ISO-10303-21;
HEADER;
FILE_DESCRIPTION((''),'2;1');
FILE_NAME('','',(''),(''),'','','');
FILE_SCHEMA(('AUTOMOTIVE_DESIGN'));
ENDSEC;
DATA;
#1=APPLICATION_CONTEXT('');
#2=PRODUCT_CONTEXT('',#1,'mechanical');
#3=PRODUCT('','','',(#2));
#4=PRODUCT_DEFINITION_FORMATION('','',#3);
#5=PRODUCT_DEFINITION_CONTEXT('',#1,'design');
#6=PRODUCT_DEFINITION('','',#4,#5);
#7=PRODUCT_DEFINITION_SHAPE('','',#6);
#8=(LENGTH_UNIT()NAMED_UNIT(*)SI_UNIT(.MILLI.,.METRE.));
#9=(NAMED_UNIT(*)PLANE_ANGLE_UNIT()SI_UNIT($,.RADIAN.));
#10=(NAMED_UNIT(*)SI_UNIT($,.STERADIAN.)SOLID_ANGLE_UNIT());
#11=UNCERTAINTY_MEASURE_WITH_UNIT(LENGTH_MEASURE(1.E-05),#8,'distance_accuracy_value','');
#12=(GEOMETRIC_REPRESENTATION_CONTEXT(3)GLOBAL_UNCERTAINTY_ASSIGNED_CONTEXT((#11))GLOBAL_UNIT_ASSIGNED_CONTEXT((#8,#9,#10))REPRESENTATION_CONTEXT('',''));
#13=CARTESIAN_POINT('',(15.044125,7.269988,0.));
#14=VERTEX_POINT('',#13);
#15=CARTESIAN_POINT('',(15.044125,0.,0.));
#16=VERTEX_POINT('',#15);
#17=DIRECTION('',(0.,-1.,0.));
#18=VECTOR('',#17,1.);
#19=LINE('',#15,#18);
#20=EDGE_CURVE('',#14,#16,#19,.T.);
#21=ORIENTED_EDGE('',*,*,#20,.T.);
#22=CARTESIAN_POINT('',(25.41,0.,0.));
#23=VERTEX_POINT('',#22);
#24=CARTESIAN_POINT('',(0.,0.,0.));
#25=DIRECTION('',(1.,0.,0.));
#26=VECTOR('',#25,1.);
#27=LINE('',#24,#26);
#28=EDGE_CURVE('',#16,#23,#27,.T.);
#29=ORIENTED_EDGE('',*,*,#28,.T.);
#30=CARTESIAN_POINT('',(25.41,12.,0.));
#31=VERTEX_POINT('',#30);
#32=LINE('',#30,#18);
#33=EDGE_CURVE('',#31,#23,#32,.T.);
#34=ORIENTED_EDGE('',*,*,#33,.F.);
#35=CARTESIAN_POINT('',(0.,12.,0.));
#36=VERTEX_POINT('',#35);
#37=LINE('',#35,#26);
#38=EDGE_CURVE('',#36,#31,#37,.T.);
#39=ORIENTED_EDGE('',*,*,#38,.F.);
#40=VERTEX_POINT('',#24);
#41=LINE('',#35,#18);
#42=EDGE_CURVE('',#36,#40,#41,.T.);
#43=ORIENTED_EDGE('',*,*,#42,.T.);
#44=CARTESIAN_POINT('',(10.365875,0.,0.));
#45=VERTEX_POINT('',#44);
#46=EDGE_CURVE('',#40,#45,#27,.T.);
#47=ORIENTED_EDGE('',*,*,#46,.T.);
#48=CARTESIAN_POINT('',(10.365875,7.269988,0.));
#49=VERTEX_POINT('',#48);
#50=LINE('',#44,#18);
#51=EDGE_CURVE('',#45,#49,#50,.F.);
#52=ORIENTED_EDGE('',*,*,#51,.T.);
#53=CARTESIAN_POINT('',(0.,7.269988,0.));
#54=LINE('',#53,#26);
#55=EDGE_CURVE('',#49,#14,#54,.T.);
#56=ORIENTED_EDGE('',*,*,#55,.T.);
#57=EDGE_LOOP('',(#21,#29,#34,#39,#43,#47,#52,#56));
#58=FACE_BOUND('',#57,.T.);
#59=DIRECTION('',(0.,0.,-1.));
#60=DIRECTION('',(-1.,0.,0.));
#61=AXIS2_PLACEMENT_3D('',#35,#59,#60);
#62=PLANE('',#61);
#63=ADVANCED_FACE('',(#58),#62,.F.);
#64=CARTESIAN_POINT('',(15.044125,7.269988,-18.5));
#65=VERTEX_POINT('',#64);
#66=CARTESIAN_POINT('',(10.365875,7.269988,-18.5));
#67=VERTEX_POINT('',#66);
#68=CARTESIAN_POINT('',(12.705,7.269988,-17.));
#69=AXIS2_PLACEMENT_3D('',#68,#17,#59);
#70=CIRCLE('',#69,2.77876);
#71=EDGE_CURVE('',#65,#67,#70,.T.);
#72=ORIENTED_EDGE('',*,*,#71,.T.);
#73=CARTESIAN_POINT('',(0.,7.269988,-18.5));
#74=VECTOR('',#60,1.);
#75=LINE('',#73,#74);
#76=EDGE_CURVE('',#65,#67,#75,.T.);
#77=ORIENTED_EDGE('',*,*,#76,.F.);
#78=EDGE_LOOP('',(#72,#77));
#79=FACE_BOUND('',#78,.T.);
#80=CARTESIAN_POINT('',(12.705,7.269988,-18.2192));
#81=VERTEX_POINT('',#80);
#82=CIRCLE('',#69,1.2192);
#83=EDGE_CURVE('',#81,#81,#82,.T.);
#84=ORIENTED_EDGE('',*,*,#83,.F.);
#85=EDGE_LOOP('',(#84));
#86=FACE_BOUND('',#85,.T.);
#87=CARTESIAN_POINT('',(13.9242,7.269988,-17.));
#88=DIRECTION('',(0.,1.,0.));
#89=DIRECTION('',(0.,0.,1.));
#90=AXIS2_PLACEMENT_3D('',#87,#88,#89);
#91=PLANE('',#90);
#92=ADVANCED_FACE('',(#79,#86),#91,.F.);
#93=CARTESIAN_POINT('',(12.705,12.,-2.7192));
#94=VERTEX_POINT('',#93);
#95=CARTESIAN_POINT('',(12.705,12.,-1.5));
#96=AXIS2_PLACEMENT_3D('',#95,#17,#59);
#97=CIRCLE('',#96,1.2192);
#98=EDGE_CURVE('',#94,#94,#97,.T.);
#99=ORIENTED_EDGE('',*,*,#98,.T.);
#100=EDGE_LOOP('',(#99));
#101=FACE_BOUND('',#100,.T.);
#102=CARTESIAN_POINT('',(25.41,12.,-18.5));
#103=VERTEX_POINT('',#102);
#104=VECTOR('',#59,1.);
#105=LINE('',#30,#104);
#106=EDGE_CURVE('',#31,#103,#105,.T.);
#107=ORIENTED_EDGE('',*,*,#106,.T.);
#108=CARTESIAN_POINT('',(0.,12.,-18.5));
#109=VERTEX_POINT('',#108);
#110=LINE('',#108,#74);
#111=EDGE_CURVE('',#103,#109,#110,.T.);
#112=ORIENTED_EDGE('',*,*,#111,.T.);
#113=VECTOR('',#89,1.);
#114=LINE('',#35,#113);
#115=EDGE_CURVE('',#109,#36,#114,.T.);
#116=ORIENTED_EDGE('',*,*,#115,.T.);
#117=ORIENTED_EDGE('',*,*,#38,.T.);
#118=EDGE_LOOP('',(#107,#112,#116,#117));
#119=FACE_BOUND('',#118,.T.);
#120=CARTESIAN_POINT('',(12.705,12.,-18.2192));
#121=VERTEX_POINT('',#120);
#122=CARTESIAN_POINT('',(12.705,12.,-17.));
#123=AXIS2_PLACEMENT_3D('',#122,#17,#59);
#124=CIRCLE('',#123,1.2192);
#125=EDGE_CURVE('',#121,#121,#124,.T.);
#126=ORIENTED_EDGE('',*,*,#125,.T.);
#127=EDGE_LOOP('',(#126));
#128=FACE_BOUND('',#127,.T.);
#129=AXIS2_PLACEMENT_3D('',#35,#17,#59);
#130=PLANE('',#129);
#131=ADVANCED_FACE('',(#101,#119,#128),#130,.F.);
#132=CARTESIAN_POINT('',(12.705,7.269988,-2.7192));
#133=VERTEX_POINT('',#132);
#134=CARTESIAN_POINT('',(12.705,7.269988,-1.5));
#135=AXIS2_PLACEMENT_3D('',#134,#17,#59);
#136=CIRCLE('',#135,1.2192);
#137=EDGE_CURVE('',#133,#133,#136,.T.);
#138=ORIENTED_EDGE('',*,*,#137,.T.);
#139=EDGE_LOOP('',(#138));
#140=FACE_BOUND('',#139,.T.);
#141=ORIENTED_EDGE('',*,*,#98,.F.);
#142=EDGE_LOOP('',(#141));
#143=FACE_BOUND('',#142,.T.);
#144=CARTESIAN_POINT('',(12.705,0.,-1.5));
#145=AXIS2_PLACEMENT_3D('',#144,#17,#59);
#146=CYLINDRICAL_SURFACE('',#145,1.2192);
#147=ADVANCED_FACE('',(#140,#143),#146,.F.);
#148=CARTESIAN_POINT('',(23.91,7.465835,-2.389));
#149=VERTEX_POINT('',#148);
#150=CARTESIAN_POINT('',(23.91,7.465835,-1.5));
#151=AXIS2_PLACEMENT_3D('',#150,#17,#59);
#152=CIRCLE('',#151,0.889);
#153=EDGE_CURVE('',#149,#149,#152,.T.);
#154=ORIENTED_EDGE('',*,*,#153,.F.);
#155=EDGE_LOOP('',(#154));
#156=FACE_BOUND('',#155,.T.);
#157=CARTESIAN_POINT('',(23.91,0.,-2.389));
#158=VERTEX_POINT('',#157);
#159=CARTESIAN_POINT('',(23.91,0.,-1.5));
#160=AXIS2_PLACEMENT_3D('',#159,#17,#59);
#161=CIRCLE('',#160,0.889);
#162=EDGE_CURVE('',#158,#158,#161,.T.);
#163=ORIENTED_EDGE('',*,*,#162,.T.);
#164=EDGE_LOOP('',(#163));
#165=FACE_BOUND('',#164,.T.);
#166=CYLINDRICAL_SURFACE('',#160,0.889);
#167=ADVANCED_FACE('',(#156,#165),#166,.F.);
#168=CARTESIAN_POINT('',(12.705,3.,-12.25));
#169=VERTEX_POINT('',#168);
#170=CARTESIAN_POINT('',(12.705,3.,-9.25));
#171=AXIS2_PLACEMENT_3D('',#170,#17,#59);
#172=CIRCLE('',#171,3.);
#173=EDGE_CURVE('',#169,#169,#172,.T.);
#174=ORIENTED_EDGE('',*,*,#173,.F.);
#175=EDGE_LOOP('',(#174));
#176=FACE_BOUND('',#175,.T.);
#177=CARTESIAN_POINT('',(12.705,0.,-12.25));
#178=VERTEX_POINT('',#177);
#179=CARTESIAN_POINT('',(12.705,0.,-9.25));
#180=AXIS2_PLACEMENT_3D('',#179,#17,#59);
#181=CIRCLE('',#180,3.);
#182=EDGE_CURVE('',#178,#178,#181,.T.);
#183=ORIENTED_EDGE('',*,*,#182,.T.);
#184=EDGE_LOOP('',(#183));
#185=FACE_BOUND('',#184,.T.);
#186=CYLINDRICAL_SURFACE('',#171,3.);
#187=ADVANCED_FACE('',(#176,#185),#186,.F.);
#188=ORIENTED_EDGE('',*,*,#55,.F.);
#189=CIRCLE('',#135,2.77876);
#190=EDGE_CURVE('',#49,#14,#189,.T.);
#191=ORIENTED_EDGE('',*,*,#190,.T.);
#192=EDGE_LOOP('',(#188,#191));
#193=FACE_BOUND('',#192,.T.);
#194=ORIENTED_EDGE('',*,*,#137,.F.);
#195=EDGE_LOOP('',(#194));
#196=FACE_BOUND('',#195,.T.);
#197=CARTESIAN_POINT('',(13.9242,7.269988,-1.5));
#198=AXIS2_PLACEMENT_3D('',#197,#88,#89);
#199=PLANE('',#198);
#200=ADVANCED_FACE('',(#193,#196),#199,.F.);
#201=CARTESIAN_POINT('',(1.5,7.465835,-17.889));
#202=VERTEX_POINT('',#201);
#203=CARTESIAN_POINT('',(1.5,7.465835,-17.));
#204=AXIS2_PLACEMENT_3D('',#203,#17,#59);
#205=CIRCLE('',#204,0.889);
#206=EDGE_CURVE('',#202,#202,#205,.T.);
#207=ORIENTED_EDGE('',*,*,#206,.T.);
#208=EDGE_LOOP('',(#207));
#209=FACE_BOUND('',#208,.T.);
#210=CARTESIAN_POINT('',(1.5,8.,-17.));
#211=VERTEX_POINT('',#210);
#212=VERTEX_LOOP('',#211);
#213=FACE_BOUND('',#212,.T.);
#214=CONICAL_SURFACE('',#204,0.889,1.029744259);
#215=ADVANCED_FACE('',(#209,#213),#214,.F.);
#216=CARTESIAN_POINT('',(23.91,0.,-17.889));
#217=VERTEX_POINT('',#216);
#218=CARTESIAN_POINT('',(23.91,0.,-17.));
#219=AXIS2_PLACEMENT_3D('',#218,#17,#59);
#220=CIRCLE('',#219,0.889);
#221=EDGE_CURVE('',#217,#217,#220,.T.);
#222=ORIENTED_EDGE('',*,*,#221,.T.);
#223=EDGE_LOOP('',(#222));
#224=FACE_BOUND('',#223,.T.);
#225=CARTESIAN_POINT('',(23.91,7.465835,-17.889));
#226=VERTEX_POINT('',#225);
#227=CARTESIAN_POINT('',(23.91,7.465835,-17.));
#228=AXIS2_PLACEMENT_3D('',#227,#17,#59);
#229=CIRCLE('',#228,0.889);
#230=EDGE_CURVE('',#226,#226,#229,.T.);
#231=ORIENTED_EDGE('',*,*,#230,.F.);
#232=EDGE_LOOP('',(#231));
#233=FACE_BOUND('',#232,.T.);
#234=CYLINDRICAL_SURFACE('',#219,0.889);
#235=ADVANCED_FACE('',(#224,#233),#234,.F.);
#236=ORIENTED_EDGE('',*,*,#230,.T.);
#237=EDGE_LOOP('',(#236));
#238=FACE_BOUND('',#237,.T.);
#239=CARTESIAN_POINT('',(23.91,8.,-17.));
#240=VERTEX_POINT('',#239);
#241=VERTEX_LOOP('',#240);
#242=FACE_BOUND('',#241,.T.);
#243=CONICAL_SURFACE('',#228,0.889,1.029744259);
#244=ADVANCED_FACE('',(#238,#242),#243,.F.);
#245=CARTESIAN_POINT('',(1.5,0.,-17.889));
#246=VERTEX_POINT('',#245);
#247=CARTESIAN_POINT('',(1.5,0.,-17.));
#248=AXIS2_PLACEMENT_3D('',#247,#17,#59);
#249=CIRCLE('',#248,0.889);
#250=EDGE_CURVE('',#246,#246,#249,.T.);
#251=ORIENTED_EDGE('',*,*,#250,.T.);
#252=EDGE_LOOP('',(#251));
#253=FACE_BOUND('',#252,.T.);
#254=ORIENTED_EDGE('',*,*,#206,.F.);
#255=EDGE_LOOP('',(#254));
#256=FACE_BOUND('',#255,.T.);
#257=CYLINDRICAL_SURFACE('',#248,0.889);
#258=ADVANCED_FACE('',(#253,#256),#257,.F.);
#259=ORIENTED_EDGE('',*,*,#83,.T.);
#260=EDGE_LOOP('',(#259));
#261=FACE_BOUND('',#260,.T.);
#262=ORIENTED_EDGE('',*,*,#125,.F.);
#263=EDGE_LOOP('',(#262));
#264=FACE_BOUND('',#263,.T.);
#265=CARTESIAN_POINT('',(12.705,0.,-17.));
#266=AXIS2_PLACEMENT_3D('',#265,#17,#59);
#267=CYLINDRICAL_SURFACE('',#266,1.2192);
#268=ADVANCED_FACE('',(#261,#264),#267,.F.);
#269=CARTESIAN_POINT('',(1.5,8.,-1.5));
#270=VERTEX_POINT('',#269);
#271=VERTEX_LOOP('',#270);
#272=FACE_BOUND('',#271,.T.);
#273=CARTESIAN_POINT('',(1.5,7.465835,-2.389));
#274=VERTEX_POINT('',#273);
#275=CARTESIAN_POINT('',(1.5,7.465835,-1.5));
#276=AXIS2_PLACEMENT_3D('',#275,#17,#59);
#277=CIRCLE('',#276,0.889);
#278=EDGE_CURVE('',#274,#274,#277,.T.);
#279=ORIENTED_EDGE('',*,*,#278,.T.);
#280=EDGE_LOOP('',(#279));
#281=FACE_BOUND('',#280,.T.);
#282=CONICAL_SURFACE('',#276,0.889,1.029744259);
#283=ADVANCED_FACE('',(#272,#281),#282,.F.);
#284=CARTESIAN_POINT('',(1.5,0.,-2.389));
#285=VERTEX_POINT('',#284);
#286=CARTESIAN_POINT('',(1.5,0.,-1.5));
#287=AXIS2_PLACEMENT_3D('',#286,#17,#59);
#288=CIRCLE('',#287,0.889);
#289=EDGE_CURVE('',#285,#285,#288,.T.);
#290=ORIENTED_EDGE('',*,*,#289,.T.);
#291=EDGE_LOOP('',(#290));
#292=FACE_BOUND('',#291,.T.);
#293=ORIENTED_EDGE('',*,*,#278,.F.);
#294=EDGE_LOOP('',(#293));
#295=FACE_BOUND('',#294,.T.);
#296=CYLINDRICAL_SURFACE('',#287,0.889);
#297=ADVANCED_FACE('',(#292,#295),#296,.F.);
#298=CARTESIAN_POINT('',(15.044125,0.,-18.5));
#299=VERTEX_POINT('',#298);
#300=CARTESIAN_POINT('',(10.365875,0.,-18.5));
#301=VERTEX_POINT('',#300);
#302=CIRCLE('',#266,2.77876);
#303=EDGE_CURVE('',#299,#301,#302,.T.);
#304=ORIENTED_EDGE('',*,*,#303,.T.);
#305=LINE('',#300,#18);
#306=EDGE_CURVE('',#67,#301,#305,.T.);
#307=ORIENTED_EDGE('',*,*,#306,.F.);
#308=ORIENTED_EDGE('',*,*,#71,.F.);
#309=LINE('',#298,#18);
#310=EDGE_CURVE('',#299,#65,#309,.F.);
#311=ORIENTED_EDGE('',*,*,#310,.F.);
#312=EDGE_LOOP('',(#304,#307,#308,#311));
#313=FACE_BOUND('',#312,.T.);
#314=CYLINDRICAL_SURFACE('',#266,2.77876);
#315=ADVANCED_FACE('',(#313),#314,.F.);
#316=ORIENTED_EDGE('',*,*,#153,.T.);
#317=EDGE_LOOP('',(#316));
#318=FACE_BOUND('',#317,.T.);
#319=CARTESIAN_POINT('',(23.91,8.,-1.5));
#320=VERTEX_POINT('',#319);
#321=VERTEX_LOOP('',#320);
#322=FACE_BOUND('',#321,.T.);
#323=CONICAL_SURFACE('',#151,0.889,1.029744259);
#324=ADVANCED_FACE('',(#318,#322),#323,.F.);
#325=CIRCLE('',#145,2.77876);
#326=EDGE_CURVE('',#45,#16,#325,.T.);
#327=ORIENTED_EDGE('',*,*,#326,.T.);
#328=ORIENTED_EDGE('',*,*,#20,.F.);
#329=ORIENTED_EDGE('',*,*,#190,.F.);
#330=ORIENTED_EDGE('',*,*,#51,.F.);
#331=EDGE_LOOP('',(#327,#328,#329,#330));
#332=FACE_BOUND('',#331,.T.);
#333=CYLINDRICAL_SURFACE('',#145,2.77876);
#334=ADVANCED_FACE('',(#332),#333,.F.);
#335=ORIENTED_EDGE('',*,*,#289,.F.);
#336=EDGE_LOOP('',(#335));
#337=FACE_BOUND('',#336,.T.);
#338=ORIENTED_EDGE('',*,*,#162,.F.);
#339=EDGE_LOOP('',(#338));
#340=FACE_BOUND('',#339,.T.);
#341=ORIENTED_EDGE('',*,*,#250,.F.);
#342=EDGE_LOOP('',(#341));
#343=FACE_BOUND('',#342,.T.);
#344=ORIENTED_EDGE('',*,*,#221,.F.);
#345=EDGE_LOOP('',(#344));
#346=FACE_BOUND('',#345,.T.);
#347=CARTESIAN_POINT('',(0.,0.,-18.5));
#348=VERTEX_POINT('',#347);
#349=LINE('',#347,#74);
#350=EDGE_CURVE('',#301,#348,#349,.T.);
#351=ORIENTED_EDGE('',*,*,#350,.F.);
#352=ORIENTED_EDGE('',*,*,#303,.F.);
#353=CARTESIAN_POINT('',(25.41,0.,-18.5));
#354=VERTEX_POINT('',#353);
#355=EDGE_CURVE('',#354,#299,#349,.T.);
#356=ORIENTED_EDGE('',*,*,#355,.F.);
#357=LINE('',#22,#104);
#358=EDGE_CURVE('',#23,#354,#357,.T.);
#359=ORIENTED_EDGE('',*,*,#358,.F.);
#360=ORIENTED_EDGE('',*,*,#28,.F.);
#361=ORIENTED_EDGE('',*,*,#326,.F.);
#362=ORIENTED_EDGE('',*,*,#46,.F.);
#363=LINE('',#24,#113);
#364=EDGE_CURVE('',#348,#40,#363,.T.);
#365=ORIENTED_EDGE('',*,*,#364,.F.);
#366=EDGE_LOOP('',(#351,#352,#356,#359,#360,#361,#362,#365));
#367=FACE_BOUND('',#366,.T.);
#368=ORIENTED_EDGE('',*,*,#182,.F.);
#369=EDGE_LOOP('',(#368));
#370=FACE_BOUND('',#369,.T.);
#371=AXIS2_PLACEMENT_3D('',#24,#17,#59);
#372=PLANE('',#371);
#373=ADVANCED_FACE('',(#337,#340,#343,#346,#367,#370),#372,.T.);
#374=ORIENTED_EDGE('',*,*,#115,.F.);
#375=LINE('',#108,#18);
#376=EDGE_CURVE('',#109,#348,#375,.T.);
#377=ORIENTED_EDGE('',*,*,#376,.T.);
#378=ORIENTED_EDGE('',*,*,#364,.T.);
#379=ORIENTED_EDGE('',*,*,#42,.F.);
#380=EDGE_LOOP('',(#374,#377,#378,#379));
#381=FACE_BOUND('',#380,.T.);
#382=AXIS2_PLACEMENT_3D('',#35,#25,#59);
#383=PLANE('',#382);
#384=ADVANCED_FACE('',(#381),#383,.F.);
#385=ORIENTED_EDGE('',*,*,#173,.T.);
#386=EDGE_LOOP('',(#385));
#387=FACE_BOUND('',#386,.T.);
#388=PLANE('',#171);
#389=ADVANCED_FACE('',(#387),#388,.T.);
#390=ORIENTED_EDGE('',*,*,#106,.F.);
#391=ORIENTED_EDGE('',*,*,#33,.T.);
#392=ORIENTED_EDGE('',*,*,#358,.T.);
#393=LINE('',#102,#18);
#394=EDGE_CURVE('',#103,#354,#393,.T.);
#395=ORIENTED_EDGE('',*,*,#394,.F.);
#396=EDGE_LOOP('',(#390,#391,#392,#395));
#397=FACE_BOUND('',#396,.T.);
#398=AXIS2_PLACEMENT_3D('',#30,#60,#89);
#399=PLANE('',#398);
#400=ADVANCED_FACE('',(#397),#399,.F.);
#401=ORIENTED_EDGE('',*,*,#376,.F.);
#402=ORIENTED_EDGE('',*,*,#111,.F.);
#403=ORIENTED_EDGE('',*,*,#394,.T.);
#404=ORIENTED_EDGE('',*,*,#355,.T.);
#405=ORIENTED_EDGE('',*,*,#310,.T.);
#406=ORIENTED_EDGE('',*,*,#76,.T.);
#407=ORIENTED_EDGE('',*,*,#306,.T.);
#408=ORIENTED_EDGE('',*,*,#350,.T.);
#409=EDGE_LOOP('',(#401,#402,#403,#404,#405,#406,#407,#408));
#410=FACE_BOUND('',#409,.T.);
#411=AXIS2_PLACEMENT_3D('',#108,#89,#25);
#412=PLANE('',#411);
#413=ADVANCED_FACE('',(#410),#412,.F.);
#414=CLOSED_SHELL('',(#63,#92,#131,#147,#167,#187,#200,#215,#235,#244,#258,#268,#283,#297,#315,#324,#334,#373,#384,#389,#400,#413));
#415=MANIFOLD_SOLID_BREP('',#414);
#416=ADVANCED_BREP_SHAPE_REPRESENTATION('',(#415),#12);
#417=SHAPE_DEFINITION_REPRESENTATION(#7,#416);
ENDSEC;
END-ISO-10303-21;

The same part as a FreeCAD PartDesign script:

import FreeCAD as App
import Part
import Sketcher

V = App.Vector
Q = App.Units.Quantity


def add_polygon(sketch, points):
    """Adds a closed chain of lines whose ends are joined by coincident constraints."""
    first, n = sketch.GeometryCount, len(points)
    for a, b in zip(points, points[1:] + points[:1]):
        sketch.addGeometry(Part.LineSegment(App.Vector(*a, 0), App.Vector(*b, 0)), False)
    for i in range(n):
        sketch.addConstraint(Sketcher.Constraint("Coincident", first + i, 2, first + (i + 1) % n, 1))

doc = App.newDocument("Part")
params = doc.addObject("Spreadsheet::Sheet", "Params")
for row, (alias, value) in enumerate([
    ("sketch1_height", "18.5 mm"),
    ("sketch1_width", "25.41 mm"),
    ("pad1_length", "12 mm"),
    ("hole_diameter", "1.778 mm"),
    ("hole_depth", "7.465835 mm"),
    ("sketch3_diameter", "6 mm"),
    ("pocket1_length", "3 mm"),
    ("hole2_diameter", "2.4384 mm"),
    ("hole2_cbore_diameter", "5.55752 mm"),
    ("hole2_cbore_depth", "7.269988 mm"),
], start=1):
    params.set(f"A{row}", alias)
    params.set(f"B{row}", "=" + value)
    params.setAlias(f"B{row}", alias)

body = doc.addObject("PartDesign::Body", "Body")

sketch1 = body.newObject("Sketcher::SketchObject", "Sketch")
sketch1.AttachmentSupport = (doc.getObject("XZ_Plane"), [""])
sketch1.MapMode = "FlatFace"
add_polygon(sketch1, [(0, -18), (0, 0), (25, 0), (25, -18)])
sketch1.addConstraint([
    Sketcher.Constraint("Vertical", 0),
    Sketcher.Constraint("Horizontal", 1),
    Sketcher.Constraint("Vertical", 2),
    Sketcher.Constraint("Horizontal", 3),
    Sketcher.Constraint("Coincident", 0, 2, -1, 1),
    Sketcher.Constraint("DistanceY", 0, 1, 0, 2, Q("18.5 mm")),
    Sketcher.Constraint("DistanceX", 1, 1, 1, 2, Q("25.41 mm")),
])
sketch1.setExpression("Constraints[9]", "Params.sketch1_height")
sketch1.setExpression("Constraints[10]", "Params.sketch1_width")
pad1 = body.newObject("PartDesign::Pad", "Pad")
pad1.Profile = sketch1
pad1.setExpression("Length", "Params.pad1_length")
pad1.Reversed = True

sketch2 = body.newObject("Sketcher::SketchObject", "Sketch001")
sketch2.AttachmentSupport = (doc.getObject("XZ_Plane"), [""])
sketch2.MapMode = "FlatFace"
sketch2.addGeometry([
    Part.Circle(V(23.9, -17, 0), V(0, 0, 1), 0.9),
    Part.Circle(V(23.9, -1.5, 0), V(0, 0, 1), 0.9),
    Part.Circle(V(1.5, -1.5, 0), V(0, 0, 1), 0.9),
    Part.Circle(V(1.5, -17, 0), V(0, 0, 1), 0.9),
], False)
sketch2.addConstraint([
    Sketcher.Constraint("Equal", 0, 1),
    Sketcher.Constraint("Equal", 1, 2),
    Sketcher.Constraint("Equal", 2, 3),
    Sketcher.Constraint("Horizontal", 1, 3, 2, 3),
    Sketcher.Constraint("Horizontal", 0, 3, 3, 3),
    Sketcher.Constraint("Vertical", 0, 3, 1, 3),
    Sketcher.Constraint("Vertical", 2, 3, 3, 3),
    Sketcher.Constraint("Diameter", 0, Q("1.778 mm")),
    Sketcher.Constraint("DistanceY", 0, 3, -1, 1, Q("17 mm")),
    Sketcher.Constraint("DistanceY", 1, 3, -1, 1, Q("1.5 mm")),
    Sketcher.Constraint("DistanceX", -1, 1, 2, 3, Q("1.5 mm")),
    Sketcher.Constraint("DistanceX", -1, 1, 0, 3, Q("23.91 mm")),
])
doc.recompute()
hole = body.newObject("PartDesign::Hole", "Hole")
hole.Profile = sketch2
hole.ThreadType = "None"
hole.setExpression("Diameter", "Params.hole_diameter")
hole.DepthType = "Dimension"
hole.setExpression("Depth", "Params.hole_depth")
hole.DrillPoint = "Angled"
hole.DrillPointAngle = 118

sketch3 = body.newObject("Sketcher::SketchObject", "Sketch002")
sketch3.AttachmentSupport = (doc.getObject("XZ_Plane"), [""])
sketch3.MapMode = "FlatFace"
sketch3.addGeometry(Part.Circle(V(12.7, -9.2, 0), V(0, 0, 1), 3), False)
sketch3.addConstraint([
    Sketcher.Constraint("Diameter", 0, Q("6 mm")),
    Sketcher.Constraint("DistanceY", 0, 3, -1, 1, Q("9.25 mm")),
    Sketcher.Constraint("DistanceX", -1, 1, 0, 3, Q("12.705 mm")),
])
sketch3.setExpression("Constraints[0]", "Params.sketch3_diameter")
pocket1 = body.newObject("PartDesign::Pocket", "Pocket")
pocket1.Profile = sketch3
pocket1.setExpression("Length", "Params.pocket1_length")

sketch4 = body.newObject("Sketcher::SketchObject", "Sketch003")
sketch4.AttachmentSupport = (doc.getObject("XZ_Plane"), [""])
sketch4.MapMode = "FlatFace"
sketch4.addGeometry([
    Part.Circle(V(12.7, -17, 0), V(0, 0, 1), 1.2),
    Part.Circle(V(12.7, -1.5, 0), V(0, 0, 1), 1.2),
], False)
sketch4.addConstraint([
    Sketcher.Constraint("Equal", 0, 1),
    Sketcher.Constraint("Vertical", 0, 3, 1, 3),
    Sketcher.Constraint("DistanceY", 0, 3, -1, 1, Q("17 mm")),
    Sketcher.Constraint("Diameter", 0, Q("2.4384 mm")),
    Sketcher.Constraint("DistanceY", 1, 3, -1, 1, Q("1.5 mm")),
    Sketcher.Constraint("DistanceX", -1, 1, 0, 3, Q("12.705 mm")),
])
doc.recompute()
hole2 = body.newObject("PartDesign::Hole", "Hole001")
hole2.Profile = sketch4
hole2.ThreadType = "None"
hole2.setExpression("Diameter", "Params.hole2_diameter")
hole2.DepthType = "ThroughAll"
hole2.HoleCutType = "Counterbore"
hole2.setExpression("HoleCutDiameter", "Params.hole2_cbore_diameter")
hole2.setExpression("HoleCutDepth", "Params.hole2_cbore_depth")

doc.recompute()
